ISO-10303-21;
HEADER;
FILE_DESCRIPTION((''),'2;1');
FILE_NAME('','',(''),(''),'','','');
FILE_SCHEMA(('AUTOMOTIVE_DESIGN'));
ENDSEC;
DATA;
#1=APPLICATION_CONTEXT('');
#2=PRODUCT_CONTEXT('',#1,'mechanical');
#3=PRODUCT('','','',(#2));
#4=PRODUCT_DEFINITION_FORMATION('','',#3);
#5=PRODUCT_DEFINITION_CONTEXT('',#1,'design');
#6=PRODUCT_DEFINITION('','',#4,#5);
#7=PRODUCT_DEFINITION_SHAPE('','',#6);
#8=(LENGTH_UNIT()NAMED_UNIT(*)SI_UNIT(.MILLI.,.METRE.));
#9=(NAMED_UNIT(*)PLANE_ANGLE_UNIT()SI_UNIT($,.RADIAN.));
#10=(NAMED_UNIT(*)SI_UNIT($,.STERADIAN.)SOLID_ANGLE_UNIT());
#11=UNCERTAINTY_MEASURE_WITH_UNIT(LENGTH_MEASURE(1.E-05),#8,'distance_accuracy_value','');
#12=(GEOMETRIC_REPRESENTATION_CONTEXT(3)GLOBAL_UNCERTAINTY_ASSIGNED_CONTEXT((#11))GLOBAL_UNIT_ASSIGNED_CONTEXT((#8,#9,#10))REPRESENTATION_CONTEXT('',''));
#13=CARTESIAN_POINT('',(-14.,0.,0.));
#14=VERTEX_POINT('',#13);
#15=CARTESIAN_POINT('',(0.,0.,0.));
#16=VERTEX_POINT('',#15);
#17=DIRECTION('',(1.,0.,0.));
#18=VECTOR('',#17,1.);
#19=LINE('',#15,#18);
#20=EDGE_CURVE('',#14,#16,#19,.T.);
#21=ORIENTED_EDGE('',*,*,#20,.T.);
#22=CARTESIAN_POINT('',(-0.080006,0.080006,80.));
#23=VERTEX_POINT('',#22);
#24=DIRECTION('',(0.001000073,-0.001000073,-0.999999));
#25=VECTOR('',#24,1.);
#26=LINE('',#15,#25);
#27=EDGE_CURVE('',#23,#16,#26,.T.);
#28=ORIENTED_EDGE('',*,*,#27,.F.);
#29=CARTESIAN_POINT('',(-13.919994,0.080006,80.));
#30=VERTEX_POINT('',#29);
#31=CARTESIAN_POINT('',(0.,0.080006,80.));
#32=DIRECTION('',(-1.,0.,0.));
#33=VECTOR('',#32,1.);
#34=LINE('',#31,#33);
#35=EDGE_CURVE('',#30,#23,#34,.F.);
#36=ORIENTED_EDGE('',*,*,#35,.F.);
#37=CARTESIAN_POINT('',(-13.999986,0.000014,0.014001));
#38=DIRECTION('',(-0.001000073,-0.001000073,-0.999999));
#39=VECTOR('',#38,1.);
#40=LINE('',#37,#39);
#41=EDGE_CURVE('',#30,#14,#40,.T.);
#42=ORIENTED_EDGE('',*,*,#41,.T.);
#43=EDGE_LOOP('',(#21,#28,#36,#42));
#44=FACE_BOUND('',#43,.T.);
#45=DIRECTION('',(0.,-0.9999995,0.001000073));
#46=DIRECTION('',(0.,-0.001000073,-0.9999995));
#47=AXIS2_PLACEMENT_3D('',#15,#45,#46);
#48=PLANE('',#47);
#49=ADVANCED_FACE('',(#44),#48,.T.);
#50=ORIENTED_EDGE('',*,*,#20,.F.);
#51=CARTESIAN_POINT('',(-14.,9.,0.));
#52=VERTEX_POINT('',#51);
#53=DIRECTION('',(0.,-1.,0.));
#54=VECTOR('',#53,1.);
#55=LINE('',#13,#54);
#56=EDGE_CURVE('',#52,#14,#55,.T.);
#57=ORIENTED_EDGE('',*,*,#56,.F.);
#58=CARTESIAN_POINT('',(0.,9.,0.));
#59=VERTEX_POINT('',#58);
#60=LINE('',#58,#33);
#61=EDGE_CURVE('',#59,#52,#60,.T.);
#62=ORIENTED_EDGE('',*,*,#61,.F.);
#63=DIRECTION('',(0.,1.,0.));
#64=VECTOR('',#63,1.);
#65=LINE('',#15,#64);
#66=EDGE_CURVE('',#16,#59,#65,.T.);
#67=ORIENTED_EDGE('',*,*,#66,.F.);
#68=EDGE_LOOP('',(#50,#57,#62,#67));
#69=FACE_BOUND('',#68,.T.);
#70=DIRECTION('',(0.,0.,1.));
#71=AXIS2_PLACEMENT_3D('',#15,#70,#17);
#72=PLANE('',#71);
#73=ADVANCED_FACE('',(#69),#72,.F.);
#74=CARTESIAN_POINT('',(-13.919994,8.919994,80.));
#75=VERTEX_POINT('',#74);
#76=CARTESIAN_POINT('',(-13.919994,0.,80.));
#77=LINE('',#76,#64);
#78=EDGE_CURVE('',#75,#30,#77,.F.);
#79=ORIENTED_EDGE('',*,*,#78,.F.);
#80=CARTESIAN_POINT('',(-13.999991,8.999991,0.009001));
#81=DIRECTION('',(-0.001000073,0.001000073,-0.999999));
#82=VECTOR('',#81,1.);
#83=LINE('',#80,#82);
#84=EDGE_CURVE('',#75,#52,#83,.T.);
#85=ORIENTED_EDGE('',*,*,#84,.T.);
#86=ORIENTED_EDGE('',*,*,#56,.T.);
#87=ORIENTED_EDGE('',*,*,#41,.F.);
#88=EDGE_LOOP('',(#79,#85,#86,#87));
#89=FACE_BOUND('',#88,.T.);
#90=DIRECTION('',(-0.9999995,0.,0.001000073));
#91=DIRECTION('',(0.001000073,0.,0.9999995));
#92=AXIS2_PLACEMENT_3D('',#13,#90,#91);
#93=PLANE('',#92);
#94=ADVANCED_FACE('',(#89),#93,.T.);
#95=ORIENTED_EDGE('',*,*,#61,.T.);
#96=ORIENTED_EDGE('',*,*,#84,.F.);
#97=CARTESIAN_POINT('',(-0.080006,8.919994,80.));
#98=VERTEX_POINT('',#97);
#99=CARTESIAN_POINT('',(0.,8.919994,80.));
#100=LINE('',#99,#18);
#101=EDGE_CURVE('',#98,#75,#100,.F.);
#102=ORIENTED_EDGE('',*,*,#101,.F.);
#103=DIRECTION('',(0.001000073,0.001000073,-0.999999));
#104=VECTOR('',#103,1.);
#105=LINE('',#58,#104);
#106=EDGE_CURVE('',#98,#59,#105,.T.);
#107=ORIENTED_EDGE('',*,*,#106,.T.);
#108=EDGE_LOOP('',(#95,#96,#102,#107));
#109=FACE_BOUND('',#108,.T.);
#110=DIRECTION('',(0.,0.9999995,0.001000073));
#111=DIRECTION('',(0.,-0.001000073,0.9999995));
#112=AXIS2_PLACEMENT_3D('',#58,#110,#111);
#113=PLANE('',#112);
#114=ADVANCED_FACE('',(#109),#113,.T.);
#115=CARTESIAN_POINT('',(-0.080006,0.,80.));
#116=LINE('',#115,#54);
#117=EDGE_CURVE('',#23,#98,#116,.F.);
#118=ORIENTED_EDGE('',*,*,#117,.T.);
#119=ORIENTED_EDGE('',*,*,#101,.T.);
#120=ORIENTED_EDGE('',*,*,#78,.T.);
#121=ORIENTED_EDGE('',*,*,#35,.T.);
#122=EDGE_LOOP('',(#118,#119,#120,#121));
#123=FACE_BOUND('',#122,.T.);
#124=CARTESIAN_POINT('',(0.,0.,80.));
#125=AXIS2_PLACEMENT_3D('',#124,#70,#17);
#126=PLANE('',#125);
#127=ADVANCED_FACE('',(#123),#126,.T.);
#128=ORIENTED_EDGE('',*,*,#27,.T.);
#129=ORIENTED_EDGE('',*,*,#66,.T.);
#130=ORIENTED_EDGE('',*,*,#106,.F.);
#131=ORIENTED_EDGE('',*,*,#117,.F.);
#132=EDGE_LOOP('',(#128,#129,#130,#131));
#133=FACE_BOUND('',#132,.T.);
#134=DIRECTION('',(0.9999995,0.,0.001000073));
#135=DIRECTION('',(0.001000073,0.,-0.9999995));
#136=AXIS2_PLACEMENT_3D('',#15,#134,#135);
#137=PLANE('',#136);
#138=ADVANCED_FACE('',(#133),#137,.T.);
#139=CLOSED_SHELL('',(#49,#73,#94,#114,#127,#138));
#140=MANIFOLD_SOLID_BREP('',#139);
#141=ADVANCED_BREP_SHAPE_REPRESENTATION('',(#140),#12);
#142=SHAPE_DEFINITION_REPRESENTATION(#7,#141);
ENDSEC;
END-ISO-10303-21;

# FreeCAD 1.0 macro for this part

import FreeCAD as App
import Part
import Sketcher


def add_polygon(sketch, points):
    """Adds a closed chain of lines whose ends are joined by coincident constraints."""
    first, n = sketch.GeometryCount, len(points)
    for a, b in zip(points, points[1:] + points[:1]):
        sketch.addGeometry(Part.LineSegment(App.Vector(*a, 0), App.Vector(*b, 0)), False)
    for i in range(n):
        sketch.addConstraint(Sketcher.Constraint("Coincident", first + i, 2, first + (i + 1) % n, 1))

doc = App.newDocument("Part")
body = doc.addObject("PartDesign::Body", "Body")

# Sketch on XY plane
sketch1 = doc.addObject("Sketcher::SketchObject", "Sketch")
body.addObject(sketch1)
sketch1.AttachmentSupport = (doc.XY_Plane, [""])
sketch1.MapMode = "FlatFace"
add_polygon(sketch1, [(-14, 9), (-14, 0), (0, 0), (0, 9)])  # lines 0-3
sketch1.addConstraint(Sketcher.Constraint("Vertical", 0))
sketch1.addConstraint(Sketcher.Constraint("Horizontal", 1))
sketch1.addConstraint(Sketcher.Constraint("Vertical", 2))
sketch1.addConstraint(Sketcher.Constraint("Horizontal", 3))
sketch1.addConstraint(Sketcher.Constraint("Coincident", 1, 2, -1, 1))
sketch1.addConstraint(Sketcher.Constraint("DistanceX", 1, 1, 1, 2, 14.0))
sketch1.addConstraint(Sketcher.Constraint("DistanceY", 0, 2, 0, 1, 9.0))
pad1 = doc.addObject("PartDesign::Pad", "Pad")
body.addObject(pad1)
pad1.Profile = sketch1
pad1.Length = 80
pad1.TaperAngle = -0.0573

doc.recompute()
